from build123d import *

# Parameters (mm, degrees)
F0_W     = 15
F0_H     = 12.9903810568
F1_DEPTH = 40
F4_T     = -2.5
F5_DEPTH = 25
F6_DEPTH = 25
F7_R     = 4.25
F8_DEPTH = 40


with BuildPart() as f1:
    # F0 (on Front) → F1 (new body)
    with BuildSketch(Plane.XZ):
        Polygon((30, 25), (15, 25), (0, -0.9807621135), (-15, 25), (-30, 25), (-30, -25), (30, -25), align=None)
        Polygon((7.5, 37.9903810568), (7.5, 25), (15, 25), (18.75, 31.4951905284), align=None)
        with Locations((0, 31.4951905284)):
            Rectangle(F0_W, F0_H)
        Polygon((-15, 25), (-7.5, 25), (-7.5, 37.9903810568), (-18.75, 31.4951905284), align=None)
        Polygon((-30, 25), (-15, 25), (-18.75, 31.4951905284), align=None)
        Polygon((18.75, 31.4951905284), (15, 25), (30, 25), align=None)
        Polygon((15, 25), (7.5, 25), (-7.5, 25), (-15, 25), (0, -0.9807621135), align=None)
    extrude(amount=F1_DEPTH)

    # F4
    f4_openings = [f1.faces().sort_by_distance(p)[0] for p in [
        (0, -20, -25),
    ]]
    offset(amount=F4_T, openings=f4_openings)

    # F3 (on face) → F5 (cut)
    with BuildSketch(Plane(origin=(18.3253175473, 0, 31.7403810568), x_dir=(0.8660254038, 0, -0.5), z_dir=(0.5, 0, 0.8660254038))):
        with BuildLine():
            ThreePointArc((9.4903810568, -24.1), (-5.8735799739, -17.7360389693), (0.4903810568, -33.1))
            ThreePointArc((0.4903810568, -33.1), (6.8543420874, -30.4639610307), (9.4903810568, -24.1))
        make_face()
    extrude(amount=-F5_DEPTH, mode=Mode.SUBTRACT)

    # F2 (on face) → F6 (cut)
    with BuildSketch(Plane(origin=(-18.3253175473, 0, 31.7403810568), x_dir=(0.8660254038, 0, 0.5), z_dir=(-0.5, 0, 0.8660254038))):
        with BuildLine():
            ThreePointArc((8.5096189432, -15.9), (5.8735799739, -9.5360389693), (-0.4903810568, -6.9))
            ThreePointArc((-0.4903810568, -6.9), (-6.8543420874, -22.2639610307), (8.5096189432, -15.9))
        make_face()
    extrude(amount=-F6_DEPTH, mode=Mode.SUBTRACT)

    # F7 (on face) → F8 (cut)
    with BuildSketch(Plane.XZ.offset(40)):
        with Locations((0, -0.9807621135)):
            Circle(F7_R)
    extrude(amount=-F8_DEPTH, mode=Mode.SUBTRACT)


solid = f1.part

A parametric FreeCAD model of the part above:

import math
import FreeCAD as App
import Part
import Sketcher

V = App.Vector
Q = App.Units.Quantity


def faces_at(feature, points):
    """Names of the faces that lie closest to the given points."""
    faces = feature.Shape.Faces
    near = lambda p: min(range(len(faces)), key=lambda i: faces[i].distToShape(Part.Vertex(*p))[0])
    return sorted({f"Face{near(p) + 1}" for p in points})


def add_polygon(sketch, points):
    """Adds a closed chain of lines whose ends are joined by coincident constraints."""
    first, n = sketch.GeometryCount, len(points)
    for a, b in zip(points, points[1:] + points[:1]):
        sketch.addGeometry(Part.LineSegment(App.Vector(*a, 0), App.Vector(*b, 0)), False)
    for i in range(n):
        sketch.addConstraint(Sketcher.Constraint("Coincident", first + i, 2, first + (i + 1) % n, 1))

doc = App.newDocument("Part")
params = doc.addObject("Spreadsheet::Sheet", "Params")
for row, (alias, value) in enumerate([
    ("sketch1_width", "15 mm"),
    ("sketch1_width2", "60 mm"),
    ("sketch1_height", "50 mm"),
    ("pad1_length", "40 mm"),
    ("thickness_wall", "2.5 mm"),
    ("sketch2_radius", "9 mm"),
    ("pocket1_length", "25 mm"),
    ("sketch3_radius", "9 mm"),
    ("pocket2_length", "25 mm"),
    ("sketch4_diameter", "8.5 mm"),
    ("pocket3_length", "40 mm"),
], start=1):
    params.set(f"A{row}", alias)
    params.set(f"B{row}", "=" + value)
    params.setAlias(f"B{row}", alias)

body = doc.addObject("PartDesign::Body", "Body")

# Sketch on XZ plane
sketch1 = body.newObject("Sketcher::SketchObject", "Sketch")
sketch1.AttachmentSupport = (doc.getObject("XZ_Plane"), [""])
sketch1.MapMode = "FlatFace"
add_polygon(sketch1, [(30, -25), (30, 25), (8, 38), (-8, 38), (-30, 25), (-30, -25)])  # lines 0-5
sketch1.addConstraint([
    Sketcher.Constraint("Vertical", 0),
    Sketcher.Constraint("Horizontal", 2),
    Sketcher.Constraint("Vertical", 4),
    Sketcher.Constraint("Horizontal", 5),
    Sketcher.Constraint("Symmetric", 0, 2, 4, 2, -1, 1),
    Sketcher.Constraint("Horizontal", 0, 2, 3, 2),
    Sketcher.Constraint("Equal", 1, 3),
    Sketcher.Constraint("DistanceX", 2, 2, 2, 1, 15.0),
    Sketcher.Constraint("DistanceX", 5, 1, 5, 2, 60.0),
    Sketcher.Constraint("DistanceY", 0, 1, 0, 2, 50.0),
    Sketcher.Constraint("Angle", 1, Q("150 deg")),
])
sketch1.setExpression("Constraints[13]", "Params.sketch1_width")
sketch1.setExpression("Constraints[14]", "Params.sketch1_width2")
sketch1.setExpression("Constraints[15]", "Params.sketch1_height")
pad1 = body.newObject("PartDesign::Pad", "Pad")
pad1.Profile = sketch1
pad1.setExpression("Length", "Params.pad1_length")
doc.recompute()

thickness = body.newObject("PartDesign::Thickness", "Thickness")
thickness.Base = (pad1, faces_at(pad1, [(0, -20, -25)]))
thickness.setExpression("Value", "Params.thickness_wall")
thickness.Reversed = True
thickness.Join = "Arc"

# Sketch on an angled plane
sketch2 = body.newObject("Sketcher::SketchObject", "Sketch001")
sketch2.Placement = App.Placement(V(18.325318, 0, 31.740381), App.Rotation(V(0.866025404, 0, -0.5), V(0, 1, 0), V(0.5, 0, 0.866025404), "ZXY"))
sketch2.addGeometry([
    Part.ArcOfCircle(Part.Circle(V(0, -24, 0), V(0, 0, 1), 9), math.radians(0), math.radians(270)),
    Part.ArcOfCircle(Part.Circle(V(0, -24, 0), V(0, 0, 1), 9), math.radians(-90), math.radians(0)),
], False)
sketch2.addConstraint([
    Sketcher.Constraint("Tangent", 0, 1, 1, 2),
    Sketcher.Constraint("Coincident", 1, 1, 0, 2),
    Sketcher.Constraint("Horizontal", 1, 3, 0, 1),
    Sketcher.Constraint("Vertical", 0, 3, 1, 1),
    Sketcher.Constraint("Radius", 0, 9.0),
    Sketcher.Constraint("DistanceY", 0, 3, -1, 1, 24.1),
    Sketcher.Constraint("DistanceX", -1, 1, 0, 3, 0.490381),
])
sketch2.setExpression("Constraints[4]", "Params.sketch2_radius")
pocket1 = body.newObject("PartDesign::Pocket", "Pocket")
pocket1.Profile = sketch2
pocket1.setExpression("Length", "Params.pocket1_length")

# Sketch on an angled plane
sketch3 = body.newObject("Sketcher::SketchObject", "Sketch002")
sketch3.Placement = App.Placement(V(-18.325318, 0, 31.740381), App.Rotation(V(0.866025404, 0, 0.5), V(0, 1, 0), V(-0.5, 0, 0.866025404), "ZXY"))
sketch3.addGeometry([
    Part.ArcOfCircle(Part.Circle(V(0, -16, 0), V(0, 0, 1), 9), math.radians(0), math.radians(90)),
    Part.ArcOfCircle(Part.Circle(V(0, -16, 0), V(0, 0, 1), 9), math.radians(90), math.radians(360)),
], False)
sketch3.addConstraint([
    Sketcher.Constraint("Tangent", 0, 1, 1, 2),
    Sketcher.Constraint("Coincident", 1, 1, 0, 2),
    Sketcher.Constraint("Horizontal", 1, 3, 0, 1),
    Sketcher.Constraint("Vertical", 0, 3, 1, 1),
    Sketcher.Constraint("Radius", 0, 9.0),
    Sketcher.Constraint("DistanceY", 0, 3, -1, 1, 15.9),
    Sketcher.Constraint("DistanceX", 0, 3, -1, 1, 0.490381),
])
sketch3.setExpression("Constraints[4]", "Params.sketch3_radius")
pocket2 = body.newObject("PartDesign::Pocket", "Pocket001")
pocket2.Profile = sketch3
pocket2.setExpression("Length", "Params.pocket2_length")

# Sketch on XZ plane
sketch4 = body.newObject("Sketcher::SketchObject", "Sketch003")
sketch4.AttachmentSupport = (doc.getObject("XZ_Plane"), [""])
sketch4.MapMode = "FlatFace"
sketch4.AttachmentOffset = App.Placement(V(0, 0, 40), App.Rotation())
sketch4.addGeometry(Part.Circle(V(0, -1, 0), V(0, 0, 1), 4.2), False)
sketch4.addConstraint([
    Sketcher.Constraint("PointOnObject", 0, 3, -2),
    Sketcher.Constraint("Diameter", 0, 8.5),
    Sketcher.Constraint("DistanceY", 0, 3, -1, 1, 0.980762),
])
sketch4.setExpression("Constraints[1]", "Params.sketch4_diameter")
pocket3 = body.newObject("PartDesign::Pocket", "Pocket002")
pocket3.Profile = sketch4
pocket3.setExpression("Length", "Params.pocket3_length")

doc.recompute()
